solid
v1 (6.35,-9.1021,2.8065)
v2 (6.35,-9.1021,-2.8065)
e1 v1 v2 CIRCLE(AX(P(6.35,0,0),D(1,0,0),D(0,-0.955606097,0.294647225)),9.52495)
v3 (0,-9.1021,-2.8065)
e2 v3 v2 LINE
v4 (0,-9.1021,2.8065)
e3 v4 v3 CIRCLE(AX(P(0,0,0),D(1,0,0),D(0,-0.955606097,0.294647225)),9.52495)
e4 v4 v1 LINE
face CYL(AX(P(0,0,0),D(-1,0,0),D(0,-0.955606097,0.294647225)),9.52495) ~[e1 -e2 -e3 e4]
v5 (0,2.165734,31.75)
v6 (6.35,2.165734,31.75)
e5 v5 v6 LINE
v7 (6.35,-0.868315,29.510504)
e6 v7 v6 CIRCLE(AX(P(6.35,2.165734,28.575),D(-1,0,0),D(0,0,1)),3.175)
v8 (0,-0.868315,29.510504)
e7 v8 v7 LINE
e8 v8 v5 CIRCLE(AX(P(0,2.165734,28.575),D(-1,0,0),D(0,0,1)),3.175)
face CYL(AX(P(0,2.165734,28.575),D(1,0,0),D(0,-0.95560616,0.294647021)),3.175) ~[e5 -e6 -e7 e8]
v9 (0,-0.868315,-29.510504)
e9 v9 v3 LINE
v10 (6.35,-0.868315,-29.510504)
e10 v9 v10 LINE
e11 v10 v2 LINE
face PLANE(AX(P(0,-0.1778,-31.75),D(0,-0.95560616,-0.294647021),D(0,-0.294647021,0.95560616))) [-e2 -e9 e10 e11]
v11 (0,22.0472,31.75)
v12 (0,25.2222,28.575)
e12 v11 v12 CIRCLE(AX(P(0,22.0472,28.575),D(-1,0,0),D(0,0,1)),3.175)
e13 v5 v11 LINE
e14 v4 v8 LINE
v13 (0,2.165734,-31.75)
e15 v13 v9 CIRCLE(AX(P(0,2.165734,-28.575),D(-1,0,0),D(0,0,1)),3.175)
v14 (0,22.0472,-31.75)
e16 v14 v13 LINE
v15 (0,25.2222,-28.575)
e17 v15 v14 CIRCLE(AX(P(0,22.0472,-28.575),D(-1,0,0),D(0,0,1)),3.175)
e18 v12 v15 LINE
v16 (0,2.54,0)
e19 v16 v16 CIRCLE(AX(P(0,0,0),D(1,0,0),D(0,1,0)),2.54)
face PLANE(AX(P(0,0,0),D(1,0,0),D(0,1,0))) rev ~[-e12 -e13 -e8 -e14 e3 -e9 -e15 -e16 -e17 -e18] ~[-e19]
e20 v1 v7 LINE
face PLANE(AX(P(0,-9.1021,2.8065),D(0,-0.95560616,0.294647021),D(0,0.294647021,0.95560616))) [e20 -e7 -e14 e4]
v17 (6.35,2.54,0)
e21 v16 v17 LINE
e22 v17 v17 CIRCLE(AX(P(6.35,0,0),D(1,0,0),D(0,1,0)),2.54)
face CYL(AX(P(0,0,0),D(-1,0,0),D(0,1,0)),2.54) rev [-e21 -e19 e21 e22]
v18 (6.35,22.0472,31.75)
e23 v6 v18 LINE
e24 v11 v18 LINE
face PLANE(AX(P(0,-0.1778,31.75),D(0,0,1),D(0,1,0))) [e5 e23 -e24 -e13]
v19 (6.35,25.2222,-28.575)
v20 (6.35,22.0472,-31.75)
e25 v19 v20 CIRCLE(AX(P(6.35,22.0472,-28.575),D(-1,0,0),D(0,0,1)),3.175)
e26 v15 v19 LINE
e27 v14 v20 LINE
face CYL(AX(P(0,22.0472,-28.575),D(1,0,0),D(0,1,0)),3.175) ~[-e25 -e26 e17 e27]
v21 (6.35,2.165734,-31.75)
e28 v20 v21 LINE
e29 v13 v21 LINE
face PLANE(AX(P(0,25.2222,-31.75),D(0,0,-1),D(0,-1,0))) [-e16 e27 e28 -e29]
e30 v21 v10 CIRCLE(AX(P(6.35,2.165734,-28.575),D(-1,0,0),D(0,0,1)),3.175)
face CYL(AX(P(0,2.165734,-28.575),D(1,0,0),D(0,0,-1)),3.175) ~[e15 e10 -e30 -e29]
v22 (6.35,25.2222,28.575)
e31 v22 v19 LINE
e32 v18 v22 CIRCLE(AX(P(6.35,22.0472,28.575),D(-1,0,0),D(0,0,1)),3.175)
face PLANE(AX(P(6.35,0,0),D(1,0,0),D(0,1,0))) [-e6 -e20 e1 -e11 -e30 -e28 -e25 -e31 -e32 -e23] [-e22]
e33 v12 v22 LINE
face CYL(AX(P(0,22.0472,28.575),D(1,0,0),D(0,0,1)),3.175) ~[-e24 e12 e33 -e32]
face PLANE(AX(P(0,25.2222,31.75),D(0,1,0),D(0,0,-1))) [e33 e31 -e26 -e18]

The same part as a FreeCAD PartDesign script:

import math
import FreeCAD as App
import Part
import Sketcher

V = App.Vector
Q = App.Units.Quantity


def edges_at(feature, points):
    """Names of the edges that pass closest to the given points."""
    edges = feature.Shape.Edges
    near = lambda p: min(range(len(edges)), key=lambda i: edges[i].distToShape(Part.Vertex(*p))[0])
    return sorted({f"Edge{near(p) + 1}" for p in points})

doc = App.newDocument("Part")
params = doc.addObject("Spreadsheet::Sheet", "Params")
for row, (alias, value) in enumerate([
    ("sketch1_diameter", "0.2 in"),
    ("sketch1_width", "1 in"),
    ("sketch1_height", "2.5 in"),
    ("sketch1_radius", "0.375 in"),
    ("pad1_length", "0.25 in"),
    ("fillet_radius", "0.125 in"),
], start=1):
    params.set(f"A{row}", alias)
    params.set(f"B{row}", "=" + value)
    params.setAlias(f"B{row}", alias)

body = doc.addObject("PartDesign::Body", "Body")

# Sketch on YZ plane
sketch1 = body.newObject("Sketcher::SketchObject", "Sketch")
sketch1.AttachmentSupport = (doc.getObject("YZ_Plane"), [""])
sketch1.MapMode = "FlatFace"
sketch1.addGeometry([
    Part.LineSegment(V(-0.2, 31.8, 0), V(-9.1, 2.8, 0)),  # 0
    Part.ArcOfCircle(Part.Circle(V(0, 0, 0), V(0, 0, 1), 9.5), math.radians(163), math.radians(197)),  # 1
    Part.LineSegment(V(-9.1, -2.8, 0), V(-0.2, -31.8, 0)),  # 2
    Part.LineSegment(V(-0.2, -31.8, 0), V(25.2, -31.8, 0)),  # 3
    Part.LineSegment(V(25.2, -31.8, 0), V(25.2, 31.8, 0)),  # 4
    Part.LineSegment(V(25.2, 31.8, 0), V(-0.2, 31.8, 0)),  # 5
    Part.Circle(V(0, 0, 0), V(0, 0, 1), 2.5),  # 6
], False)
sketch1.addConstraint([
    Sketcher.Constraint("Tangent", 0, 2, 1, 1),
    Sketcher.Constraint("Tangent", 1, 2, 2, 1),
    Sketcher.Constraint("Coincident", 2, 2, 3, 1),
    Sketcher.Constraint("Coincident", 3, 2, 4, 1),
    Sketcher.Constraint("Coincident", 4, 2, 5, 1),
    Sketcher.Constraint("Coincident", 5, 2, 0, 1),
    Sketcher.Constraint("Horizontal", 3),
    Sketcher.Constraint("Vertical", 4),
    Sketcher.Constraint("Horizontal", 5),
    Sketcher.Constraint("Coincident", 1, 3, -1, 1),
    Sketcher.Constraint("Coincident", 6, 3, -1, 1),
    Sketcher.Constraint("Symmetric", 2, 2, 5, 2, -1),
    Sketcher.Constraint("Diameter", 6, Q("0.2 in")),
    Sketcher.Constraint("DistanceX", 3, 1, 3, 2, Q("1 in")),
    Sketcher.Constraint("DistanceY", 4, 1, 4, 2, Q("2.5 in")),
    Sketcher.Constraint("Radius", 1, Q("0.375 in")),
    Sketcher.Constraint("DistanceX", 2, 2, -1, 1, Q("0.007 in")),
])
sketch1.setExpression("Constraints[12]", "Params.sketch1_diameter")
sketch1.setExpression("Constraints[13]", "Params.sketch1_width")
sketch1.setExpression("Constraints[14]", "Params.sketch1_height")
sketch1.setExpression("Constraints[15]", "Params.sketch1_radius")
pad1 = body.newObject("PartDesign::Pad", "Pad")
pad1.Profile = sketch1
pad1.setExpression("Length", "Params.pad1_length")
doc.recompute()

fillet = body.newObject("PartDesign::Fillet", "Fillet")
fillet.Base = (pad1, edges_at(pad1, [
    (3.175, 25.222, 31.75),
    (3.175, -0.178, 31.75),
    (3.175, 25.222, -31.75),
    (3.175, -0.178, -31.75),
]))
fillet.setExpression("Radius", "Params.fillet_radius")

doc.recompute()
